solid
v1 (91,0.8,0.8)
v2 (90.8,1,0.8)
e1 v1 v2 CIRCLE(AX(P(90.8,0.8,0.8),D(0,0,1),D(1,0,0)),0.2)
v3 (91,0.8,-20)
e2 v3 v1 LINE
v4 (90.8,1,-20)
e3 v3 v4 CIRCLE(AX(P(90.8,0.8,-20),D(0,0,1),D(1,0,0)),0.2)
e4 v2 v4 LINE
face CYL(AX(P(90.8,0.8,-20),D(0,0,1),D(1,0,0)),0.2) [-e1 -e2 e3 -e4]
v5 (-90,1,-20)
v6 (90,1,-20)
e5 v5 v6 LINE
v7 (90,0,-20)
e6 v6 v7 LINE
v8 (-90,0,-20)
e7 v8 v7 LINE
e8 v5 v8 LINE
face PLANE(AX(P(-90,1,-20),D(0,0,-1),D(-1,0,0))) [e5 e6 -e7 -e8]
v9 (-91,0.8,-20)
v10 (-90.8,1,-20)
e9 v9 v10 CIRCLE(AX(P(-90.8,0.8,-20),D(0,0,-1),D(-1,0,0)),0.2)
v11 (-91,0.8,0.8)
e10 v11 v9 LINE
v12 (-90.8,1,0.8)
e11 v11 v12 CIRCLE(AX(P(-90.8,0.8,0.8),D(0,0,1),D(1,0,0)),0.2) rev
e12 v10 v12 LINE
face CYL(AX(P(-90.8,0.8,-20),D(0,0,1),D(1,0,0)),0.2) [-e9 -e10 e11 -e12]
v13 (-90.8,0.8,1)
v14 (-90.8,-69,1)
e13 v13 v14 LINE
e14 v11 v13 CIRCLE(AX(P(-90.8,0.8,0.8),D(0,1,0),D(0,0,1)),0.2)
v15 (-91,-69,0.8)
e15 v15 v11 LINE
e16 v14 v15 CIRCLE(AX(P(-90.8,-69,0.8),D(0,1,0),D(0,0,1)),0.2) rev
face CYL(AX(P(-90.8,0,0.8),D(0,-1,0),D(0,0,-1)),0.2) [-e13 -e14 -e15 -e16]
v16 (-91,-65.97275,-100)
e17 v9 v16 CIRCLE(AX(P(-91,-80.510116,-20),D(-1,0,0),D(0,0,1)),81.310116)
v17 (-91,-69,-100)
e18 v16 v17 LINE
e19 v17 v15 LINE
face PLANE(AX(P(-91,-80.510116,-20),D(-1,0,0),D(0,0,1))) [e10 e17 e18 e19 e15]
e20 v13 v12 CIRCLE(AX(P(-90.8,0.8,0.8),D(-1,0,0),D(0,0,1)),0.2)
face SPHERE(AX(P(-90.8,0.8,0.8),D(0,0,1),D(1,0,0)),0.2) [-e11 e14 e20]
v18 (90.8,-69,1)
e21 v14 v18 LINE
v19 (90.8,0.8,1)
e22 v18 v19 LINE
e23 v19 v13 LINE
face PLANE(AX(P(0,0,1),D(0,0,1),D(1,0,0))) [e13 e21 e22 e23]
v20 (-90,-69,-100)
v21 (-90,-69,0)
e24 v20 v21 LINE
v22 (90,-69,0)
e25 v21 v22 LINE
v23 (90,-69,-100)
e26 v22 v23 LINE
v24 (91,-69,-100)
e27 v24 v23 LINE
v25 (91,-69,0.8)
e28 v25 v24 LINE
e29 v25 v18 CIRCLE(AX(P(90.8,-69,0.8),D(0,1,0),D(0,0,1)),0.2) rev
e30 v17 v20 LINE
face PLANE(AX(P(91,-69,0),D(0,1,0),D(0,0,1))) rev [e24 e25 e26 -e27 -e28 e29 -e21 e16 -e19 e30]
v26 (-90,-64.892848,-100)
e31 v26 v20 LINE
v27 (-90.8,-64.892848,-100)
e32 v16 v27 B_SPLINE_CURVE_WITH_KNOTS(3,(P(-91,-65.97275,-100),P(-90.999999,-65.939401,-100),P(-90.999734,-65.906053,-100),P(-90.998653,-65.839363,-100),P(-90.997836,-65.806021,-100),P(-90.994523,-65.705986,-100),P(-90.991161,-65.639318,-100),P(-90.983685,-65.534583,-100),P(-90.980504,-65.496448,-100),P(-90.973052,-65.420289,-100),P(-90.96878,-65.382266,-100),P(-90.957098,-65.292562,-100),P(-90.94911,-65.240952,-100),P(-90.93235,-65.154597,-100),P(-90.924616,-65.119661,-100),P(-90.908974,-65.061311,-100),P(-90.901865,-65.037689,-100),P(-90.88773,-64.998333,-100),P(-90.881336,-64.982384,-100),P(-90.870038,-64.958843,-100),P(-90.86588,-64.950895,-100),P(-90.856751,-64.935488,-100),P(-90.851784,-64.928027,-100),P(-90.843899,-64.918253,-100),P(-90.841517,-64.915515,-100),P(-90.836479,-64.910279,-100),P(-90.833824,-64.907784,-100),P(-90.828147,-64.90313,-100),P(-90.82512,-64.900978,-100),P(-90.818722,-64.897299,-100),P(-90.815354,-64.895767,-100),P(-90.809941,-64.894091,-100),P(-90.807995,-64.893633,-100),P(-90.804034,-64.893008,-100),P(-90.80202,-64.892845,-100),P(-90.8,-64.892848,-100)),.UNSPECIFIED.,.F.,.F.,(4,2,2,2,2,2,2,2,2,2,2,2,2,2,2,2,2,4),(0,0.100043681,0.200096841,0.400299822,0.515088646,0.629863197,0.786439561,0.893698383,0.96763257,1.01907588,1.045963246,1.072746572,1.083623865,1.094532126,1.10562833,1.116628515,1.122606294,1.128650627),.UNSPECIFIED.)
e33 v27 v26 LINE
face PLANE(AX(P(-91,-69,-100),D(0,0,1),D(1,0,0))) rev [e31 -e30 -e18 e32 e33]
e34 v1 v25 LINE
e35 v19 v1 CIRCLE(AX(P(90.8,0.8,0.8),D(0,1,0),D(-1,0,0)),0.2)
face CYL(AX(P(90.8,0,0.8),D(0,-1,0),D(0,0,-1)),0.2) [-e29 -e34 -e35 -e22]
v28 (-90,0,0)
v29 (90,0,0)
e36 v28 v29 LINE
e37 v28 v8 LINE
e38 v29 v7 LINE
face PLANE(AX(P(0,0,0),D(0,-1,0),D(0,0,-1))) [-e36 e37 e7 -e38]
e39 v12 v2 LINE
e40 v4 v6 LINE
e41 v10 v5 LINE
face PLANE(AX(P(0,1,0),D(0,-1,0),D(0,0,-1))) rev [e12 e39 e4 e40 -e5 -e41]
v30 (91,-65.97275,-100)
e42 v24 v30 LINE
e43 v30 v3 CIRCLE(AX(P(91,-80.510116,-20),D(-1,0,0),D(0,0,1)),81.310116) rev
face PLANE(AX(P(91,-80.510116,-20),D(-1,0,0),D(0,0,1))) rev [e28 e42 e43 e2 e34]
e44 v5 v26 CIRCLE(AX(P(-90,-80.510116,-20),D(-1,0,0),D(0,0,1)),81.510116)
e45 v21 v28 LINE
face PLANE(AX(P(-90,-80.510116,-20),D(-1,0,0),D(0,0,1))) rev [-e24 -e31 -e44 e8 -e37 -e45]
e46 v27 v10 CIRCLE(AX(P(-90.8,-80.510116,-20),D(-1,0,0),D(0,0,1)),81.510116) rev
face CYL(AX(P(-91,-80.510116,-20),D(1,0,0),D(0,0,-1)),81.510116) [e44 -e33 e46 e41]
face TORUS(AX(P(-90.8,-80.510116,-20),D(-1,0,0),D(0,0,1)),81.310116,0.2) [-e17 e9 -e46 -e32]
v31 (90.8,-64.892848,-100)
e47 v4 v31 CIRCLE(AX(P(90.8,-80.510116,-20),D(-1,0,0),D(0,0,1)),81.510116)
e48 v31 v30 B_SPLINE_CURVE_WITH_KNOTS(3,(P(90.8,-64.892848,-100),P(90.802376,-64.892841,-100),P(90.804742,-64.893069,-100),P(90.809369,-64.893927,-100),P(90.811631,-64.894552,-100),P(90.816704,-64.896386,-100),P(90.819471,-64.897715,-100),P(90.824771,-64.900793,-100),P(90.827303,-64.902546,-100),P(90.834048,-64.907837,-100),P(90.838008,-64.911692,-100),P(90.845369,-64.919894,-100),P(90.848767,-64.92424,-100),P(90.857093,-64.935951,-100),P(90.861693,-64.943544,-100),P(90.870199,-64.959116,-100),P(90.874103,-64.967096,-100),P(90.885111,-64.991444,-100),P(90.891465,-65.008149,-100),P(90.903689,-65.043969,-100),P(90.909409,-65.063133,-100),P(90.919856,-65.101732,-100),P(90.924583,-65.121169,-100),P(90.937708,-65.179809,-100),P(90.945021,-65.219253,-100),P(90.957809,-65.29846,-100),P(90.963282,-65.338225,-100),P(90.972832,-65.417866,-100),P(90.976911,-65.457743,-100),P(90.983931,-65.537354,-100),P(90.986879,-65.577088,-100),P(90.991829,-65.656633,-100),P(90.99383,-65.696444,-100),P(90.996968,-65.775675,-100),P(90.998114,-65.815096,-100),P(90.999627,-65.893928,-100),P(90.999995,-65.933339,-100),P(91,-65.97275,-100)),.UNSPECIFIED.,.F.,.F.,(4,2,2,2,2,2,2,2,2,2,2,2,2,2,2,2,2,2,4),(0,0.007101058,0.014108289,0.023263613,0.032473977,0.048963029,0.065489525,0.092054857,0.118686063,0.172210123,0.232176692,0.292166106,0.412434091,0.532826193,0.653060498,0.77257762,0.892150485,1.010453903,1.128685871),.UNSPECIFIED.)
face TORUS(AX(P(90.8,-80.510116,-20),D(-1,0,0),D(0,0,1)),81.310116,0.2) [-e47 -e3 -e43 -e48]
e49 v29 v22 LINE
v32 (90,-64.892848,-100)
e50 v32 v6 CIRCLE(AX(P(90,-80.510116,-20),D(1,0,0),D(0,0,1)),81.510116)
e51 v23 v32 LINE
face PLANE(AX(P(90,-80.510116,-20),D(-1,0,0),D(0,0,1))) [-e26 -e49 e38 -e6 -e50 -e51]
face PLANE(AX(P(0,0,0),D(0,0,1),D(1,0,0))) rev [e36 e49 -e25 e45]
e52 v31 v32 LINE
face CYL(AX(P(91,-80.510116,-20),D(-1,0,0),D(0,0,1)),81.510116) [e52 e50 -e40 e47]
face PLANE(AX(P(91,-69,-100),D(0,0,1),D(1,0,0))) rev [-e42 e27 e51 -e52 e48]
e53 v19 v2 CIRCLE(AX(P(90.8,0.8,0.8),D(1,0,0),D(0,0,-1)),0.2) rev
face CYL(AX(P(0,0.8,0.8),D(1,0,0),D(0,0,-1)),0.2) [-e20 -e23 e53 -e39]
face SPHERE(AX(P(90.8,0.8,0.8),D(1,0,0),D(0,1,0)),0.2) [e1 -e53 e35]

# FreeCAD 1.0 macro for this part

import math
import FreeCAD as App
import Part
import Sketcher
Q = App.Units.Quantity


def edges_at(feature, points):
    """Names of the edges that pass closest to the given points."""
    edges = feature.Shape.Edges
    near = lambda p: min(range(len(edges)), key=lambda i: edges[i].distToShape(Part.Vertex(*p))[0])
    return sorted({f"Edge{near(p) + 1}" for p in points})


def add_polygon(sketch, points):
    """Adds a closed chain of lines whose ends are joined by coincident constraints."""
    first, n = sketch.GeometryCount, len(points)
    for a, b in zip(points, points[1:] + points[:1]):
        sketch.addGeometry(Part.LineSegment(App.Vector(*a, 0), App.Vector(*b, 0)), False)
    for i in range(n):
        sketch.addConstraint(Sketcher.Constraint("Coincident", first + i, 2, first + (i + 1) % n, 1))

doc = App.newDocument("Part")
params = doc.addObject("Spreadsheet::Sheet", "Params")
for row, (alias, value) in enumerate([
    ("sketch1_width", "180 mm"),
    ("sketch1_height", "20 mm"),
    ("pad1_length", "1 mm"),
    ("sketch2_width", "70 mm"),
    ("sketch2_height", "100 mm"),
    ("sketch2_height2", "20 mm"),
    ("pad2_length", "1 mm"),
    ("sketch3_width", "70 mm"),
    ("sketch3_height", "20 mm"),
    ("sketch3_height2", "100 mm"),
    ("pad3_length", "1 mm"),
    ("sketch4_width", "182 mm"),
    ("sketch4_height", "70 mm"),
    ("pad4_length", "1 mm"),
    ("fillet_radius", "0.2 mm"),
], start=1):
    params.set(f"A{row}", alias)
    params.set(f"B{row}", "=" + value)
    params.setAlias(f"B{row}", alias)

body = doc.addObject("PartDesign::Body", "Body")

sketch1 = body.newObject("Sketcher::SketchObject", "Sketch")
sketch1.AttachmentSupport = (doc.getObject("XZ_Plane"), [""])
sketch1.MapMode = "FlatFace"
add_polygon(sketch1, [(-90, -20), (-90, 0), (90, 0), (90, -20)])
sketch1.addConstraint(Sketcher.Constraint("Vertical", 0))
sketch1.addConstraint(Sketcher.Constraint("Horizontal", 1))
sketch1.addConstraint(Sketcher.Constraint("Vertical", 2))
sketch1.addConstraint(Sketcher.Constraint("Horizontal", 3))
sketch1.addConstraint(Sketcher.Constraint("Symmetric", 0, 2, 1, 2, -1, 1))
sketch1.addConstraint(Sketcher.Constraint("DistanceX", 1, 1, 1, 2, Q("180 mm")))
sketch1.addConstraint(Sketcher.Constraint("DistanceY", 0, 1, 0, 2, Q("20 mm")))
sketch1.setExpression("Constraints[9]", "Params.sketch1_width")
sketch1.setExpression("Constraints[10]", "Params.sketch1_height")
pad1 = body.newObject("PartDesign::Pad", "Pad")
pad1.Profile = sketch1
pad1.setExpression("Length", "Params.pad1_length")
pad1.Reversed = True

sketch2 = body.newObject("Sketcher::SketchObject", "Sketch001")
sketch2.AttachmentSupport = (doc.getObject("YZ_Plane"), [""])
sketch2.MapMode = "FlatFace"
sketch2.AttachmentOffset = App.Placement(App.Vector(0, 0, 90), App.Rotation())
sketch2.addGeometry(Part.LineSegment(App.Vector(1, 0, 0), App.Vector(-69, 0, 0)), False)
sketch2.addGeometry(Part.LineSegment(App.Vector(-69, 0, 0), App.Vector(-69, -100, 0)), False)
sketch2.addGeometry(Part.LineSegment(App.Vector(-69, -100, 0), App.Vector(-64.9, -100, 0)), False)
sketch2.addGeometry(Part.ArcOfCircle(Part.Circle(App.Vector(-80.5, -20, 0), App.Vector(0, 0, 1), 81.5), math.radians(-79), math.radians(0)), False)
sketch2.addGeometry(Part.LineSegment(App.Vector(1, -20, 0), App.Vector(1, 0, 0)), False)
sketch2.addConstraint(Sketcher.Constraint("Coincident", 0, 2, 1, 1))
sketch2.addConstraint(Sketcher.Constraint("Coincident", 1, 2, 2, 1))
sketch2.addConstraint(Sketcher.Constraint("Coincident", 2, 2, 3, 1))
sketch2.addConstraint(Sketcher.Constraint("Tangent", 3, 2, 4, 1))
sketch2.addConstraint(Sketcher.Constraint("Coincident", 4, 2, 0, 1))
sketch2.addConstraint(Sketcher.Constraint("Horizontal", 0))
sketch2.addConstraint(Sketcher.Constraint("Vertical", 1))
sketch2.addConstraint(Sketcher.Constraint("Horizontal", 2))
sketch2.addConstraint(Sketcher.Constraint("Vertical", 4))
sketch2.addConstraint(Sketcher.Constraint("PointOnObject", 0, 2, -1))
sketch2.addConstraint(Sketcher.Constraint("DistanceX", 0, 2, 0, 1, Q("70 mm")))
sketch2.addConstraint(Sketcher.Constraint("DistanceY", 1, 2, 1, 1, Q("100 mm")))
sketch2.addConstraint(Sketcher.Constraint("DistanceY", 4, 1, 4, 2, Q("20 mm")))
sketch2.addConstraint(Sketcher.Constraint("DistanceX", 0, 2, -1, 1, Q("69 mm")))
sketch2.addConstraint(Sketcher.Constraint("Radius", 3, Q("81.510116 mm")))
sketch2.setExpression("Constraints[10]", "Params.sketch2_width")
sketch2.setExpression("Constraints[11]", "Params.sketch2_height")
sketch2.setExpression("Constraints[12]", "Params.sketch2_height2")
pad2 = body.newObject("PartDesign::Pad", "Pad001")
pad2.Profile = sketch2
pad2.setExpression("Length", "Params.pad2_length")

sketch3 = body.newObject("Sketcher::SketchObject", "Sketch002")
sketch3.AttachmentSupport = (doc.getObject("YZ_Plane"), [""])
sketch3.MapMode = "FlatFace"
sketch3.AttachmentOffset = App.Placement(App.Vector(0, 0, -91), App.Rotation())
sketch3.addGeometry(Part.LineSegment(App.Vector(1, 0, 0), App.Vector(1, -20, 0)), False)
sketch3.addGeometry(Part.ArcOfCircle(Part.Circle(App.Vector(-80.5, -20, 0), App.Vector(0, 0, 1), 81.5), math.radians(-79), math.radians(0)), False)
sketch3.addGeometry(Part.LineSegment(App.Vector(-64.9, -100, 0), App.Vector(-69, -100, 0)), False)
sketch3.addGeometry(Part.LineSegment(App.Vector(-69, -100, 0), App.Vector(-69, 0, 0)), False)
sketch3.addGeometry(Part.LineSegment(App.Vector(-69, 0, 0), App.Vector(1, 0, 0)), False)
sketch3.addConstraint(Sketcher.Constraint("Tangent", 0, 2, 1, 2))
sketch3.addConstraint(Sketcher.Constraint("Coincident", 1, 1, 2, 1))
sketch3.addConstraint(Sketcher.Constraint("Coincident", 2, 2, 3, 1))
sketch3.addConstraint(Sketcher.Constraint("Coincident", 3, 2, 4, 1))
sketch3.addConstraint(Sketcher.Constraint("Coincident", 4, 2, 0, 1))
sketch3.addConstraint(Sketcher.Constraint("Vertical", 0))
sketch3.addConstraint(Sketcher.Constraint("Horizontal", 2))
sketch3.addConstraint(Sketcher.Constraint("Vertical", 3))
sketch3.addConstraint(Sketcher.Constraint("Horizontal", 4))
sketch3.addConstraint(Sketcher.Constraint("PointOnObject", 3, 2, -1))
sketch3.addConstraint(Sketcher.Constraint("DistanceX", 4, 1, 4, 2, Q("70 mm")))
sketch3.addConstraint(Sketcher.Constraint("DistanceY", 0, 2, 0, 1, Q("20 mm")))
sketch3.addConstraint(Sketcher.Constraint("DistanceY", 3, 1, 3, 2, Q("100 mm")))
sketch3.addConstraint(Sketcher.Constraint("DistanceX", -1, 1, 0, 2, Q("1 mm")))
sketch3.addConstraint(Sketcher.Constraint("Radius", 1, Q("81.510116 mm")))
sketch3.setExpression("Constraints[10]", "Params.sketch3_width")
sketch3.setExpression("Constraints[11]", "Params.sketch3_height")
sketch3.setExpression("Constraints[12]", "Params.sketch3_height2")
pad3 = body.newObject("PartDesign::Pad", "Pad002")
pad3.Profile = sketch3
pad3.setExpression("Length", "Params.pad3_length")

sketch4 = body.newObject("Sketcher::SketchObject", "Sketch003")
sketch4.AttachmentSupport = (doc.getObject("XY_Plane"), [""])
sketch4.MapMode = "FlatFace"
add_polygon(sketch4, [(-91, 1), (-91, -69), (91, -69), (91, 1)])
sketch4.addConstraint(Sketcher.Constraint("Vertical", 0))
sketch4.addConstraint(Sketcher.Constraint("Horizontal", 1))
sketch4.addConstraint(Sketcher.Constraint("Vertical", 2))
sketch4.addConstraint(Sketcher.Constraint("Horizontal", 3))
sketch4.addConstraint(Sketcher.Constraint("DistanceX", 1, 1, 1, 2, Q("182 mm")))
sketch4.addConstraint(Sketcher.Constraint("DistanceY", 0, 2, 0, 1, Q("70 mm")))
sketch4.addConstraint(Sketcher.Constraint("DistanceX", 0, 2, -1, 1, Q("91 mm")))
sketch4.addConstraint(Sketcher.Constraint("DistanceY", 0, 2, -1, 1, Q("69 mm")))
sketch4.setExpression("Constraints[8]", "Params.sketch4_width")
sketch4.setExpression("Constraints[9]", "Params.sketch4_height")
pad4 = body.newObject("PartDesign::Pad", "Pad003")
pad4.Profile = sketch4
pad4.setExpression("Length", "Params.pad4_length")
doc.recompute()

fillet = body.newObject("PartDesign::Fillet", "Fillet")
fillet.Base = (pad4, edges_at(pad4, [
    (91, 1, -9.5),
    (91, -17.594, -71.821),
    (-91, 1, -9.5),
    (-91, -17.594, -71.821),
    (-91, -34, 1),
    (91, -34, 1),
    (0, 1, 1),
]))
fillet.setExpression("Radius", "Params.fillet_radius")

doc.recompute()
